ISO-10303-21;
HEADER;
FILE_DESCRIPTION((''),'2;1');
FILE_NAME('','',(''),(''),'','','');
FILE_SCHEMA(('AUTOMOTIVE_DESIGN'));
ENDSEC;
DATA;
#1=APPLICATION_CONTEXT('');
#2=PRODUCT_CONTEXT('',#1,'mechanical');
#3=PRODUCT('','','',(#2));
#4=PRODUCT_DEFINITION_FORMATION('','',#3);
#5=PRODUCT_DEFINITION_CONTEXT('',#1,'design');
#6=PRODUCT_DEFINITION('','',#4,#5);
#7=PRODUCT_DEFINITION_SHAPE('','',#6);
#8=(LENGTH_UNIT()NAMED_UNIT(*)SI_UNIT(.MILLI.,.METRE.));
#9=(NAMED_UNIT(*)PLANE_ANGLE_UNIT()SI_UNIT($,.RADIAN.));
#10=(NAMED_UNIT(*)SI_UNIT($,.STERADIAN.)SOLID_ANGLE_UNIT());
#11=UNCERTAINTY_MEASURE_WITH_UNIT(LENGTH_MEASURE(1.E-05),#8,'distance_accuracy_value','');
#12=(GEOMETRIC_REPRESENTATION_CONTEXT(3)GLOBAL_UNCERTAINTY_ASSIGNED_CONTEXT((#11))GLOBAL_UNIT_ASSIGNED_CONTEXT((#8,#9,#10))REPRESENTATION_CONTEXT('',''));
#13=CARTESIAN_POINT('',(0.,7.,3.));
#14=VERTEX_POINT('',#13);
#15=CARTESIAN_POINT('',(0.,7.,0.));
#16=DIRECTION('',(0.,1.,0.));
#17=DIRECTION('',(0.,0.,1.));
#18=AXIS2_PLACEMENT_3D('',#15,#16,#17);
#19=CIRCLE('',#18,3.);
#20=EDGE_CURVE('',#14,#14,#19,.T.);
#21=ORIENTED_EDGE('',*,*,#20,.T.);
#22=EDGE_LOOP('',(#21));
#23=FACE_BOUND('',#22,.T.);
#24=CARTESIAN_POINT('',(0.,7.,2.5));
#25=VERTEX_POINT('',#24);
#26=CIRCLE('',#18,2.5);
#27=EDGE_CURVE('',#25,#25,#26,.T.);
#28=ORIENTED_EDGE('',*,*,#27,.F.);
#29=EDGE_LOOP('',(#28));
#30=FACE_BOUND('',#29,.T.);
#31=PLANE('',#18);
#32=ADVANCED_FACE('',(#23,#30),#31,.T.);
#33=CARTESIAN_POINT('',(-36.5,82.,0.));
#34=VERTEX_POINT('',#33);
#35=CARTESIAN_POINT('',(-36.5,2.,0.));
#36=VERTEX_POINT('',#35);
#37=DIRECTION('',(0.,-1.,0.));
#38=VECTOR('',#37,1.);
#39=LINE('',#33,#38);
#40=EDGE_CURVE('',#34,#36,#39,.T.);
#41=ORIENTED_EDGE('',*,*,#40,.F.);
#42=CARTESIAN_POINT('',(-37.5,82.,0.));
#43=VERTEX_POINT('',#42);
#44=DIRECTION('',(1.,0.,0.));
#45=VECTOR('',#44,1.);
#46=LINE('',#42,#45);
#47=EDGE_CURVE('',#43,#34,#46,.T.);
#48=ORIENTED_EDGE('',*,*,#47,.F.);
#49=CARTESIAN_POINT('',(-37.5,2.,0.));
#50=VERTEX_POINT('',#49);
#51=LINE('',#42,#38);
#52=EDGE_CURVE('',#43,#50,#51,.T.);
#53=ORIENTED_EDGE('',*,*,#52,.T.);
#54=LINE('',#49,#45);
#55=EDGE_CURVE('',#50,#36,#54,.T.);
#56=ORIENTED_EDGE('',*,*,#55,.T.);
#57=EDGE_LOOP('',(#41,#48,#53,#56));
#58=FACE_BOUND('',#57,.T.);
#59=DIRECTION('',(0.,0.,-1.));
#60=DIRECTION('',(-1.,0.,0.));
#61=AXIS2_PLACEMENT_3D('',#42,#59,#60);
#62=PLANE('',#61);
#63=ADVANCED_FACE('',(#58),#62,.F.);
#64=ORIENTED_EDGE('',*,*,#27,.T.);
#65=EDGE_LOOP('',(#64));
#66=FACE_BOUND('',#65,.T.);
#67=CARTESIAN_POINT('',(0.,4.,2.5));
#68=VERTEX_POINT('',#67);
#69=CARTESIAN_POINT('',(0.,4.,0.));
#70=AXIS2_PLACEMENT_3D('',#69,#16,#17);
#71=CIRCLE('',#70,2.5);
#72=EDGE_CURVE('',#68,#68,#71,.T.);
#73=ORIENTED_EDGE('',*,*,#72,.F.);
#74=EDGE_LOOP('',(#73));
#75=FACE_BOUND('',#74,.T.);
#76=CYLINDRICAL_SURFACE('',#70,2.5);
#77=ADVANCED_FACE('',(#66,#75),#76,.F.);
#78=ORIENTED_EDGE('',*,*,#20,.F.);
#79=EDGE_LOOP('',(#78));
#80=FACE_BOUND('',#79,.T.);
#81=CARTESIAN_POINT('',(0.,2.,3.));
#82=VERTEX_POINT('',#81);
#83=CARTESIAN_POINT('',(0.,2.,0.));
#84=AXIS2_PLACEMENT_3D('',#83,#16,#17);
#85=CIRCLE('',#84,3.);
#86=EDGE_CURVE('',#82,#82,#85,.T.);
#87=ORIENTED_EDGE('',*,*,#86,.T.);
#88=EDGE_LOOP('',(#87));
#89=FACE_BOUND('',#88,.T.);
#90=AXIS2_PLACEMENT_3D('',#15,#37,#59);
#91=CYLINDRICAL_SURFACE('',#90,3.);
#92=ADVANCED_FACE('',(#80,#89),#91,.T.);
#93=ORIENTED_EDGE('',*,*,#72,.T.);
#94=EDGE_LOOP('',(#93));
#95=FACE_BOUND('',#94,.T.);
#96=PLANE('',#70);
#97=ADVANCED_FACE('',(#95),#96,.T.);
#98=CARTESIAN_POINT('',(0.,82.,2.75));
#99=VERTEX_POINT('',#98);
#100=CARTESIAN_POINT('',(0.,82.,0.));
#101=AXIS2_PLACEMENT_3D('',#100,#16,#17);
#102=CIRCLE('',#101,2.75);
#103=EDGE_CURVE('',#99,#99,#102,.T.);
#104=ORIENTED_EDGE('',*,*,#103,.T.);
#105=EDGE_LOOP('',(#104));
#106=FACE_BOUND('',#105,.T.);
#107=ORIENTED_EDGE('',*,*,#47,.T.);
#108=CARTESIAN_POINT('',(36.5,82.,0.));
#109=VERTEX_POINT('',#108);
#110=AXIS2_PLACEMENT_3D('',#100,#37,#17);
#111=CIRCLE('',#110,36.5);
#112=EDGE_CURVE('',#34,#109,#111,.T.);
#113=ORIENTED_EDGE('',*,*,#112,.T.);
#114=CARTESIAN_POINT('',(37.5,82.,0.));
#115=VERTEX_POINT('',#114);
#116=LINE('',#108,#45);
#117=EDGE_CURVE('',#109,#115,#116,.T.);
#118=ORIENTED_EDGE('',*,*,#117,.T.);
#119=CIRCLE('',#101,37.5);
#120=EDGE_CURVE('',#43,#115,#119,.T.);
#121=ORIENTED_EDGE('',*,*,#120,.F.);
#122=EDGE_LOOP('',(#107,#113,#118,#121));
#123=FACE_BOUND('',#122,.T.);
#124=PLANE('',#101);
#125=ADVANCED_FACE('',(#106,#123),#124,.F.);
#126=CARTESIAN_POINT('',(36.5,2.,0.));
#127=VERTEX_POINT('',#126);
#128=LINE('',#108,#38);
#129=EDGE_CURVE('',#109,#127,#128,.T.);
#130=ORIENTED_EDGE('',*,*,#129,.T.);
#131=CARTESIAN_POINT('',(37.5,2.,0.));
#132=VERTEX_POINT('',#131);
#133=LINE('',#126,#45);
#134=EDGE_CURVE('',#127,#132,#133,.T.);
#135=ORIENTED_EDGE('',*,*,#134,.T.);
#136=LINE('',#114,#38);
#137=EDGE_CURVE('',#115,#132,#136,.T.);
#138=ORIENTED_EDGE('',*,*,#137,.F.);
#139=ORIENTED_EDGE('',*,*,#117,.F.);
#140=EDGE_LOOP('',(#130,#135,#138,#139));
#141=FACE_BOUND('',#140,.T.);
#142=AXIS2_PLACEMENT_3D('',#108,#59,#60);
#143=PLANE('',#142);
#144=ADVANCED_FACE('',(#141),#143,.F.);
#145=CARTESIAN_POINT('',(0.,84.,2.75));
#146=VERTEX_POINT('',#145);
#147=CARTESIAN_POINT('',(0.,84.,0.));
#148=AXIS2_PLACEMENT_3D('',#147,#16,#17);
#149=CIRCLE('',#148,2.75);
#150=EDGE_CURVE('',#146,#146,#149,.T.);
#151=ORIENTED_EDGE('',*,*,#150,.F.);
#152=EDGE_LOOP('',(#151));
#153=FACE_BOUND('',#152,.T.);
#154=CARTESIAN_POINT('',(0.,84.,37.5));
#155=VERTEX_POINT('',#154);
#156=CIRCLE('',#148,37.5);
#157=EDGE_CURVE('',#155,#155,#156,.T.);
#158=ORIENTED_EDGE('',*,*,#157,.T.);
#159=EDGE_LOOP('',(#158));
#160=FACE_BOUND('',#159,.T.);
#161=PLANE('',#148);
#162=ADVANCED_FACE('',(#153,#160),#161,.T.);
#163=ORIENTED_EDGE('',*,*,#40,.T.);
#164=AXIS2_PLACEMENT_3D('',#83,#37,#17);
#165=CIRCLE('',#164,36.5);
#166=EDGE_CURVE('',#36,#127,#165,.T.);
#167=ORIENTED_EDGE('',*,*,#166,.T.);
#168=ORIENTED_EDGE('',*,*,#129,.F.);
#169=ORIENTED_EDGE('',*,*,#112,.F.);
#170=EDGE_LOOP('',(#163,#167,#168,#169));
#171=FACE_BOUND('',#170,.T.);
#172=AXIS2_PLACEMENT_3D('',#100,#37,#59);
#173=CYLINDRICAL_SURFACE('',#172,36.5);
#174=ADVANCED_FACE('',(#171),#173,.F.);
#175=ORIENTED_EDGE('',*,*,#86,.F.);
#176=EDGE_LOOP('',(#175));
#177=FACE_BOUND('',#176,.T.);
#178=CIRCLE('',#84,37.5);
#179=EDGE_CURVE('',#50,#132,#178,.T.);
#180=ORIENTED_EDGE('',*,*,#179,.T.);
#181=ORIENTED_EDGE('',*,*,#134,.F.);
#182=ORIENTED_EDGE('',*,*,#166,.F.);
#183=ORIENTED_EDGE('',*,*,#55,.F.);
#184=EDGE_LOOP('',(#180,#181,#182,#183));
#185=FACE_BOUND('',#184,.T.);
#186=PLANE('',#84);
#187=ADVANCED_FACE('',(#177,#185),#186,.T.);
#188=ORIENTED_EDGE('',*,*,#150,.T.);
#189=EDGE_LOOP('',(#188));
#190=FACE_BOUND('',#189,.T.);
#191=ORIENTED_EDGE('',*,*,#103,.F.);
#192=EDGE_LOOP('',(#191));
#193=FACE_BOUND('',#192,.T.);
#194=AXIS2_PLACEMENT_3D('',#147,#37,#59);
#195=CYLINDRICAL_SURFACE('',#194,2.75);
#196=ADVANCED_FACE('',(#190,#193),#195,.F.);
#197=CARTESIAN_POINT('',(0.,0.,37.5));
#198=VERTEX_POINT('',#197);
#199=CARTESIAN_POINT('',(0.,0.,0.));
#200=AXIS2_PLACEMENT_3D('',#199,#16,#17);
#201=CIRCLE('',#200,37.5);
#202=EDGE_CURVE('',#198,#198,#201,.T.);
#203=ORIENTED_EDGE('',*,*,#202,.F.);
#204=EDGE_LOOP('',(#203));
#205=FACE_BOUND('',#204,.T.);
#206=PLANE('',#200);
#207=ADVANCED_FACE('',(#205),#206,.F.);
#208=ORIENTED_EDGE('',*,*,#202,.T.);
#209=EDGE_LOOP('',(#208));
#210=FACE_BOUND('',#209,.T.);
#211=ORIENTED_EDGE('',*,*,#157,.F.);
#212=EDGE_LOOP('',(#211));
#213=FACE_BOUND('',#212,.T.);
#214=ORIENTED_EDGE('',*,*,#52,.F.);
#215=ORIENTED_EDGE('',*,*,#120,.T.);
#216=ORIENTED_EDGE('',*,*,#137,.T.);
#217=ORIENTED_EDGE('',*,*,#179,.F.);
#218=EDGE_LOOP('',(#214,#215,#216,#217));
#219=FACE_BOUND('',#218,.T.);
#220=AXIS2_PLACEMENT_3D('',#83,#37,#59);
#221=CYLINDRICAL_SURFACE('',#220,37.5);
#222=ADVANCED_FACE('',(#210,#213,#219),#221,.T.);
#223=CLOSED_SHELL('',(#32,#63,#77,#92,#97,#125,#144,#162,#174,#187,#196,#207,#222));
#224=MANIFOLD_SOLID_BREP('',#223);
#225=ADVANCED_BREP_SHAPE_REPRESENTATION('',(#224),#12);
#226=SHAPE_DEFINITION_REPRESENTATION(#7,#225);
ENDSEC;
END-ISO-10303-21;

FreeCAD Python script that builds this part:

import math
import FreeCAD as App
import Part
import Sketcher

doc = App.newDocument("Part")
params = doc.addObject("Spreadsheet::Sheet", "Params")
for row, (alias, value) in enumerate([
    ("sketch1_diameter", "75 mm"),
    ("pad1_length", "2 mm"),
    ("sketch2_diameter", "6 mm"),
    ("pad2_length", "5 mm"),
    ("sketch3_diameter", "5 mm"),
    ("pocket1_length", "3 mm"),
    ("sketch4_radius", "36.5 mm"),
    ("sketch4_radius2", "37.5 mm"),
    ("pad3_length", "80 mm"),
    ("sketch5_diameter", "75 mm"),
    ("sketch5_diameter2", "5.5 mm"),
    ("pad4_length", "2 mm"),
], start=1):
    params.set(f"A{row}", alias)
    params.set(f"B{row}", "=" + value)
    params.setAlias(f"B{row}", alias)

body = doc.addObject("PartDesign::Body", "Body")

sketch1 = body.newObject("Sketcher::SketchObject", "Sketch")
sketch1.AttachmentSupport = (doc.getObject("XZ_Plane"), [""])
sketch1.MapMode = "FlatFace"
sketch1.addGeometry(Part.Circle(App.Vector(0, 0, 0), App.Vector(0, 0, 1), 37.5), False)
sketch1.addConstraint([
    Sketcher.Constraint("Coincident", 0, 3, -1, 1),
    Sketcher.Constraint("Diameter", 0, 75.0),
])
sketch1.setExpression("Constraints[1]", "Params.sketch1_diameter")
pad1 = body.newObject("PartDesign::Pad", "Pad")
pad1.Profile = sketch1
pad1.setExpression("Length", "Params.pad1_length")
pad1.Reversed = True

sketch2 = body.newObject("Sketcher::SketchObject", "Sketch001")
sketch2.AttachmentSupport = (doc.getObject("XZ_Plane"), [""])
sketch2.MapMode = "FlatFace"
sketch2.AttachmentOffset = App.Placement(App.Vector(0, 0, -2), App.Rotation())
sketch2.addGeometry(Part.Circle(App.Vector(0, 0, 0), App.Vector(0, 0, 1), 3), False)
sketch2.addConstraint([
    Sketcher.Constraint("Coincident", 0, 3, -1, 1),
    Sketcher.Constraint("Diameter", 0, 6.0),
])
sketch2.setExpression("Constraints[1]", "Params.sketch2_diameter")
pad2 = body.newObject("PartDesign::Pad", "Pad001")
pad2.Profile = sketch2
pad2.setExpression("Length", "Params.pad2_length")
pad2.Reversed = True

sketch3 = body.newObject("Sketcher::SketchObject", "Sketch002")
sketch3.AttachmentSupport = (doc.getObject("XZ_Plane"), [""])
sketch3.MapMode = "FlatFace"
sketch3.AttachmentOffset = App.Placement(App.Vector(0, 0, -7), App.Rotation())
sketch3.addGeometry(Part.Circle(App.Vector(0, 0, 0), App.Vector(0, 0, 1), 2.5), False)
sketch3.addConstraint([
    Sketcher.Constraint("Coincident", 0, 3, -1, 1),
    Sketcher.Constraint("Diameter", 0, 5.0),
])
sketch3.setExpression("Constraints[1]", "Params.sketch3_diameter")
pocket1 = body.newObject("PartDesign::Pocket", "Pocket")
pocket1.Profile = sketch3
pocket1.setExpression("Length", "Params.pocket1_length")
pocket1.Reversed = True

sketch4 = body.newObject("Sketcher::SketchObject", "Sketch003")
sketch4.AttachmentSupport = (doc.getObject("XZ_Plane"), [""])
sketch4.MapMode = "FlatFace"
sketch4.AttachmentOffset = App.Placement(App.Vector(0, 0, -2), App.Rotation())
sketch4.addGeometry([
    Part.LineSegment(App.Vector(-37.5, 0, 0), App.Vector(-36.5, 0, 0)),
    Part.ArcOfCircle(Part.Circle(App.Vector(0, 0, 0), App.Vector(0, 0, 1), 36.5), math.radians(180), math.radians(360)),
    Part.LineSegment(App.Vector(36.5, 0, 0), App.Vector(37.5, 0, 0)),
    Part.ArcOfCircle(Part.Circle(App.Vector(0, 0, 0), App.Vector(0, 0, 1), 37.5), math.radians(180), math.radians(360)),
], False)
sketch4.addConstraint([
    Sketcher.Constraint("Coincident", 0, 2, 1, 1),
    Sketcher.Constraint("Coincident", 1, 2, 2, 1),
    Sketcher.Constraint("Coincident", 2, 2, 3, 2),
    Sketcher.Constraint("Coincident", 3, 1, 0, 1),
    Sketcher.Constraint("Horizontal", 0),
    Sketcher.Constraint("Horizontal", 2),
    Sketcher.Constraint("Coincident", 1, 3, -1, 1),
    Sketcher.Constraint("Coincident", 3, 3, -1, 1),
    Sketcher.Constraint("PointOnObject", 0, 2, -1),
    Sketcher.Constraint("PointOnObject", 1, 2, -1),
    Sketcher.Constraint("Radius", 1, 36.5),
    Sketcher.Constraint("Radius", 3, 37.5),
])
sketch4.setExpression("Constraints[10]", "Params.sketch4_radius")
sketch4.setExpression("Constraints[11]", "Params.sketch4_radius2")
pad3 = body.newObject("PartDesign::Pad", "Pad002")
pad3.Profile = sketch4
pad3.setExpression("Length", "Params.pad3_length")
pad3.Reversed = True

sketch5 = body.newObject("Sketcher::SketchObject", "Sketch004")
sketch5.AttachmentSupport = (doc.getObject("XZ_Plane"), [""])
sketch5.MapMode = "FlatFace"
sketch5.AttachmentOffset = App.Placement(App.Vector(0, 0, -82), App.Rotation())
sketch5.addGeometry([
    Part.Circle(App.Vector(0, 0, 0), App.Vector(0, 0, 1), 37.5),
    Part.Circle(App.Vector(0, 0, 0), App.Vector(0, 0, 1), 2.75),
], False)
sketch5.addConstraint([
    Sketcher.Constraint("Coincident", 0, 3, -1, 1),
    Sketcher.Constraint("Coincident", 1, 3, -1, 1),
    Sketcher.Constraint("Diameter", 0, 75.0),
    Sketcher.Constraint("Diameter", 1, 5.5),
])
sketch5.setExpression("Constraints[2]", "Params.sketch5_diameter")
sketch5.setExpression("Constraints[3]", "Params.sketch5_diameter2")
pad4 = body.newObject("PartDesign::Pad", "Pad003")
pad4.Profile = sketch5
pad4.setExpression("Length", "Params.pad4_length")
pad4.Reversed = True

doc.recompute()
